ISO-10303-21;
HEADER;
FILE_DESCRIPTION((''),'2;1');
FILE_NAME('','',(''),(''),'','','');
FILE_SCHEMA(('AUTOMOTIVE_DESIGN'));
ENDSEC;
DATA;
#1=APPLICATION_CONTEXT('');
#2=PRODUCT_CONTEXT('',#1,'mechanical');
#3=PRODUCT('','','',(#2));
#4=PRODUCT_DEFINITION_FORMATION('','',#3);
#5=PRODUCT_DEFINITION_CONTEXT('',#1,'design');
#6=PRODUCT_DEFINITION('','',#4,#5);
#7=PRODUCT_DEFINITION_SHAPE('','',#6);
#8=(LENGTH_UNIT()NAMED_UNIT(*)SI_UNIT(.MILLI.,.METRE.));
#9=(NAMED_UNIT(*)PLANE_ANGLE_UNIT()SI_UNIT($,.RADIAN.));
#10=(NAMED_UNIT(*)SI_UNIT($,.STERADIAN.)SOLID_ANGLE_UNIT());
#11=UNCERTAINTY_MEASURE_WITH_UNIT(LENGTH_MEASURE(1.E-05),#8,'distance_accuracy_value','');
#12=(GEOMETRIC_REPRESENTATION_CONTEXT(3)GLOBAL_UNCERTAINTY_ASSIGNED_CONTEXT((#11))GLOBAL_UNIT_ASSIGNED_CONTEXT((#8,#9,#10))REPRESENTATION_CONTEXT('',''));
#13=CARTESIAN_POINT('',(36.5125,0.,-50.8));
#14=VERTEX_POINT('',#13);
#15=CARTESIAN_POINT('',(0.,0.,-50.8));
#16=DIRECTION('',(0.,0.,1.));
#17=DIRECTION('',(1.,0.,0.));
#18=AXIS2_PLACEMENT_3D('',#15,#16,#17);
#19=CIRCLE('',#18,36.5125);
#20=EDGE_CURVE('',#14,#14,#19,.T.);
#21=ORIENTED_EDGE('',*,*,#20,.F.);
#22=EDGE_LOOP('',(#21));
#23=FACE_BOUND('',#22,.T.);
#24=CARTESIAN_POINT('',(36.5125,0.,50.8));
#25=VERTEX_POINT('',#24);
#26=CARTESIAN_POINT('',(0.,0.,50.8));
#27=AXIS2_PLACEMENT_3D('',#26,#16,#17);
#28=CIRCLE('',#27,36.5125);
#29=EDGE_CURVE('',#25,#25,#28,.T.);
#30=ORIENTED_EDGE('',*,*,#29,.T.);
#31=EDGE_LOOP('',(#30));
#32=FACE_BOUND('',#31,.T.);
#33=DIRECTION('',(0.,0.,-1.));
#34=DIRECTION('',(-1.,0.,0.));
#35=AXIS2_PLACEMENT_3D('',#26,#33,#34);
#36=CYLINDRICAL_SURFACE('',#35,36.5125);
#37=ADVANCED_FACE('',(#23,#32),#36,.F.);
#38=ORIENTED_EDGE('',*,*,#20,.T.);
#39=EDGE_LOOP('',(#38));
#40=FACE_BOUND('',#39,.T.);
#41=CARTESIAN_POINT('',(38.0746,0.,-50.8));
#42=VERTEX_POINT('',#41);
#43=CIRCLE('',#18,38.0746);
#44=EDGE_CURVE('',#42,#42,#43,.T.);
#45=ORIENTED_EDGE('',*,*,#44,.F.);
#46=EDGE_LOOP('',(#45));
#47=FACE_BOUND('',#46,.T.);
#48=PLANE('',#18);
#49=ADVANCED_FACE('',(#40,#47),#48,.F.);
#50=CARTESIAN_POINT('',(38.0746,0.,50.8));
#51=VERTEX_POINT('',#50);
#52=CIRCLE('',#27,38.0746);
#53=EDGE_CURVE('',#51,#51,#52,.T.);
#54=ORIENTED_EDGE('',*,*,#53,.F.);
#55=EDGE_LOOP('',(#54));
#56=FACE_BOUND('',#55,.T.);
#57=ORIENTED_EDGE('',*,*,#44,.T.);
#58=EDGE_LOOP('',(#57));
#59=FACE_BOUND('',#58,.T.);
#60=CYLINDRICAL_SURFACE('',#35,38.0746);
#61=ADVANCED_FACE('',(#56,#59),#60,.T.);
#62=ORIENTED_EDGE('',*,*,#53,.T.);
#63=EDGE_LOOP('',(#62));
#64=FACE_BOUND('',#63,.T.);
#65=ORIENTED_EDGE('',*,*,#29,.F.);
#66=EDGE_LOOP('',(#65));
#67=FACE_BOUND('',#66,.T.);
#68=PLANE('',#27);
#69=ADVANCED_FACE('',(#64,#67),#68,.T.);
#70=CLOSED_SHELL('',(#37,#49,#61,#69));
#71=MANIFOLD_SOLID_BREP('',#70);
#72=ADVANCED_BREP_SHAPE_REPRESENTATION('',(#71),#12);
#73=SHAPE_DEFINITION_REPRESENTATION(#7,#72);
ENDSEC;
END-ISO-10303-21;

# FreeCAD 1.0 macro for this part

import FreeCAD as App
import Part
import Sketcher
from FreeCAD import Vector
Q = App.Units.Quantity

doc = App.newDocument("Part")
body = doc.addObject("PartDesign::Body", "Body")

# Sketch on XY plane
sketch1 = body.newObject("Sketcher::SketchObject", "Sketch")
sketch1.AttachmentSupport = (doc.getObject("XY_Plane"), [""])
sketch1.MapMode = "FlatFace"
sketch1.addGeometry([
    Part.Circle(Vector(0, 0, 0), Vector(0, 0, 1), 38.0746),
    Part.Circle(Vector(0, 0, 0), Vector(0, 0, 1), 36.5125),
], False)
sketch1.addConstraint([
    Sketcher.Constraint("Coincident", 0, 3, -1, 1),
    Sketcher.Constraint("Coincident", 1, 3, -1, 1),
    Sketcher.Constraint("Diameter", 0, Q("2.998 in")),
    Sketcher.Constraint("Diameter", 1, Q("2.875 in")),
])
pad1 = body.newObject("PartDesign::Pad", "Pad")
pad1.Profile = sketch1
pad1.Length = Q("4 in")
pad1.Midplane = True

doc.recompute()
